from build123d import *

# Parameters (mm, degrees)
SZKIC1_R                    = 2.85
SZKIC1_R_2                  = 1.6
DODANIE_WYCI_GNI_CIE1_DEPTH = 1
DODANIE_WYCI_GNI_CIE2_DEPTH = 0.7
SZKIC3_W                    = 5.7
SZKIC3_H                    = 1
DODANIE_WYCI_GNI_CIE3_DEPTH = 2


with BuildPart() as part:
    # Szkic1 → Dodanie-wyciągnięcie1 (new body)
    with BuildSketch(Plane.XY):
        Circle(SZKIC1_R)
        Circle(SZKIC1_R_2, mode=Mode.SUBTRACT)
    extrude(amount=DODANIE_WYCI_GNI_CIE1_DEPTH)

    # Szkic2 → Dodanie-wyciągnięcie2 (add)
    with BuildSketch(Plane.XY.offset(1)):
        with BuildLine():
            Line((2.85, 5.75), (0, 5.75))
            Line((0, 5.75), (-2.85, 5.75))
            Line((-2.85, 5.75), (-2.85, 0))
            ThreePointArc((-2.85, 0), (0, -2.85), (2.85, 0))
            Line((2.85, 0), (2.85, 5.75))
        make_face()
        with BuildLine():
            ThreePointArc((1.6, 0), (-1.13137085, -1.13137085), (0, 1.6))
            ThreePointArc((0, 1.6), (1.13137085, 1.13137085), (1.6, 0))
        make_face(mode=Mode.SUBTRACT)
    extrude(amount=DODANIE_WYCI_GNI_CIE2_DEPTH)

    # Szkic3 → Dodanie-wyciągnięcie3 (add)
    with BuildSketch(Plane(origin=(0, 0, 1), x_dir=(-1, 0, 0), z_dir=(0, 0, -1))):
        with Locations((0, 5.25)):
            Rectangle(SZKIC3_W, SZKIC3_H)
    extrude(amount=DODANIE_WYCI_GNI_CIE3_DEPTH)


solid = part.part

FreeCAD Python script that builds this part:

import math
import FreeCAD as App
import Part
import Sketcher
from FreeCAD import Vector
Q = App.Units.Quantity

doc = App.newDocument("Part")
body = doc.addObject("PartDesign::Body", "Body")

sketch1 = body.newObject("Sketcher::SketchObject", "Sketch")
sketch1.AttachmentSupport = (doc.getObject("XY_Plane"), [""])
sketch1.MapMode = "FlatFace"
sketch1.addGeometry(Part.Circle(Vector(0, 0, 0), Vector(0, 0, 1), 2.9), False)
sketch1.addGeometry(Part.Circle(Vector(0, 0, 0), Vector(0, 0, 1), 1.6), False)
sketch1.addConstraint(Sketcher.Constraint("Coincident", 0, 3, -1, 1))
sketch1.addConstraint(Sketcher.Constraint("Coincident", 1, 3, -1, 1))
sketch1.addConstraint(Sketcher.Constraint("Diameter", 0, Q("5.7 mm")))
sketch1.addConstraint(Sketcher.Constraint("Diameter", 1, Q("3.2 mm")))
pad1 = body.newObject("PartDesign::Pad", "Pad")
pad1.Profile = sketch1
pad1.Length = 1

sketch2 = body.newObject("Sketcher::SketchObject", "Sketch001")
sketch2.AttachmentSupport = (doc.getObject("XY_Plane"), [""])
sketch2.MapMode = "FlatFace"
sketch2.AttachmentOffset = App.Placement(Vector(0, 0, 1), App.Rotation())
sketch2.addGeometry(Part.LineSegment(Vector(2.9, 5.8, 0), Vector(-2.9, 5.8, 0)), False)
sketch2.addGeometry(Part.LineSegment(Vector(-2.9, 5.8, 0), Vector(-2.9, 0, 0)), False)
sketch2.addGeometry(Part.ArcOfCircle(Part.Circle(Vector(0, 0, 0), Vector(0, 0, 1), 2.9), math.radians(180), math.radians(360)), False)
sketch2.addGeometry(Part.LineSegment(Vector(2.9, 0, 0), Vector(2.9, 5.8, 0)), False)
sketch2.addGeometry(Part.ArcOfCircle(Part.Circle(Vector(0, 0, 0), Vector(0, 0, 1), 1.6), math.radians(0), math.radians(90)), False)
sketch2.addGeometry(Part.ArcOfCircle(Part.Circle(Vector(0, 0, 0), Vector(0, 0, 1), 1.6), math.radians(90), math.radians(360)), False)
sketch2.addConstraint(Sketcher.Constraint("Coincident", 0, 2, 1, 1))
sketch2.addConstraint(Sketcher.Constraint("Tangent", 1, 2, 2, 1))
sketch2.addConstraint(Sketcher.Constraint("Tangent", 2, 2, 3, 1))
sketch2.addConstraint(Sketcher.Constraint("Coincident", 3, 2, 0, 1))
sketch2.addConstraint(Sketcher.Constraint("Tangent", 4, 1, 5, 2))
sketch2.addConstraint(Sketcher.Constraint("Coincident", 5, 1, 4, 2))
sketch2.addConstraint(Sketcher.Constraint("Horizontal", 0))
sketch2.addConstraint(Sketcher.Constraint("Vertical", 1))
sketch2.addConstraint(Sketcher.Constraint("Vertical", 3))
sketch2.addConstraint(Sketcher.Constraint("Coincident", 2, 3, -1, 1))
sketch2.addConstraint(Sketcher.Constraint("Coincident", 4, 3, -1, 1))
sketch2.addConstraint(Sketcher.Constraint("PointOnObject", 4, 1, -1))
sketch2.addConstraint(Sketcher.Constraint("PointOnObject", 5, 1, -2))
sketch2.addConstraint(Sketcher.Constraint("Radius", 4, Q("1.6 mm")))
sketch2.addConstraint(Sketcher.Constraint("Radius", 2, Q("2.85 mm")))
sketch2.addConstraint(Sketcher.Constraint("DistanceY", 1, 2, 1, 1, Q("5.75 mm")))
pad2 = body.newObject("PartDesign::Pad", "Pad001")
pad2.Profile = sketch2
pad2.Length = 0.7

sketch3 = body.newObject("Sketcher::SketchObject", "Sketch002")
sketch3.AttachmentSupport = (doc.getObject("XY_Plane"), [""])
sketch3.MapMode = "FlatFace"
sketch3.AttachmentOffset = App.Placement(Vector(0, 0, 1), App.Rotation())
sketch3.addGeometry(Part.LineSegment(Vector(2.9, 5.8, 0), Vector(2.9, 4.8, 0)), False)
sketch3.addGeometry(Part.LineSegment(Vector(2.9, 4.8, 0), Vector(-2.9, 4.8, 0)), False)
sketch3.addGeometry(Part.LineSegment(Vector(-2.9, 4.8, 0), Vector(-2.9, 5.8, 0)), False)
sketch3.addGeometry(Part.LineSegment(Vector(-2.9, 5.8, 0), Vector(2.9, 5.8, 0)), False)
sketch3.addConstraint(Sketcher.Constraint("Coincident", 0, 2, 1, 1))
sketch3.addConstraint(Sketcher.Constraint("Coincident", 1, 2, 2, 1))
sketch3.addConstraint(Sketcher.Constraint("Coincident", 2, 2, 3, 1))
sketch3.addConstraint(Sketcher.Constraint("Coincident", 3, 2, 0, 1))
sketch3.addConstraint(Sketcher.Constraint("Vertical", 0))
sketch3.addConstraint(Sketcher.Constraint("Horizontal", 1))
sketch3.addConstraint(Sketcher.Constraint("Vertical", 2))
sketch3.addConstraint(Sketcher.Constraint("Horizontal", 3))
sketch3.addConstraint(Sketcher.Constraint("DistanceY", 0, 2, 0, 1, Q("1 mm")))
sketch3.addConstraint(Sketcher.Constraint("DistanceX", 1, 2, 1, 1, Q("5.7 mm")))
sketch3.addConstraint(Sketcher.Constraint("DistanceX", -1, 1, 0, 2, Q("2.85 mm")))
sketch3.addConstraint(Sketcher.Constraint("DistanceY", -1, 1, 0, 2, Q("4.75 mm")))
pad3 = body.newObject("PartDesign::Pad", "Pad002")
pad3.Profile = sketch3
pad3.Length = 2
pad3.Reversed = True

doc.recompute()
